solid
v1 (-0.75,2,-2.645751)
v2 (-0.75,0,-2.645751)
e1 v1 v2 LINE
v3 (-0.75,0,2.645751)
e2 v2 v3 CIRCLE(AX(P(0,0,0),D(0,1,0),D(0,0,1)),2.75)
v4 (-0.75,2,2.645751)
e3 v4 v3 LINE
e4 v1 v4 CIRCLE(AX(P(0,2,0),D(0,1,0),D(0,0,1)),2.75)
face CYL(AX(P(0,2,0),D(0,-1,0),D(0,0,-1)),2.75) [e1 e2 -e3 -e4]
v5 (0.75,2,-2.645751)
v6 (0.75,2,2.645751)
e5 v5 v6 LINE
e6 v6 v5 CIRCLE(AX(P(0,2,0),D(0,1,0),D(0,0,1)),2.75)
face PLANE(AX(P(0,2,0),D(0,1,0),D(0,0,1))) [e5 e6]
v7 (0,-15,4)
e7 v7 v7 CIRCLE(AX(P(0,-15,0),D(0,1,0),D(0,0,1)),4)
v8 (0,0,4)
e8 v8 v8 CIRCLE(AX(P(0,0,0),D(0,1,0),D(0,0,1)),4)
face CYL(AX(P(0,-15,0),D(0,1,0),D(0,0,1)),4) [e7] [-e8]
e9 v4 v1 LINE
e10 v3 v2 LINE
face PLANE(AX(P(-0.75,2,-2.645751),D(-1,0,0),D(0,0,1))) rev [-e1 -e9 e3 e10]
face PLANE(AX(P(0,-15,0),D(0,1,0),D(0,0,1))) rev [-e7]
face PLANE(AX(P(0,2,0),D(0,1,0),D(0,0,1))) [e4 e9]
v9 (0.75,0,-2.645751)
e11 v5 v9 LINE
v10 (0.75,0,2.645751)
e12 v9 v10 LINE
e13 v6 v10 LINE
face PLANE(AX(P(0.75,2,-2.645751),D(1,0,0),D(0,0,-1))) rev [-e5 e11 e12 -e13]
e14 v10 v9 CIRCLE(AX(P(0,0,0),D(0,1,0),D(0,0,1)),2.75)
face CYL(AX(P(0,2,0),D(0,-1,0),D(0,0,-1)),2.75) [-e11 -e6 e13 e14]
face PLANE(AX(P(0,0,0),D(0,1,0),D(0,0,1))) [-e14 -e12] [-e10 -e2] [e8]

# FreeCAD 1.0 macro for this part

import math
import FreeCAD as App
import Part
import Sketcher
from FreeCAD import Vector
Q = App.Units.Quantity

doc = App.newDocument("Part")
body = doc.addObject("PartDesign::Body", "Body")

# Sketch on XZ plane
sketch1 = body.newObject("Sketcher::SketchObject", "Sketch")
sketch1.AttachmentSupport = (doc.getObject("XZ_Plane"), [""])
sketch1.MapMode = "FlatFace"
sketch1.addGeometry(Part.Circle(Vector(0, 0, 0), Vector(0, 0, 1), 4), False)
sketch1.addConstraint([
    Sketcher.Constraint("Coincident", 0, 3, -1, 1),
    Sketcher.Constraint("Diameter", 0, Q("8 mm")),
])
pad1 = body.newObject("PartDesign::Pad", "Pad")
pad1.Profile = sketch1
pad1.Length = 15

# Sketch on XZ plane
sketch2 = body.newObject("Sketcher::SketchObject", "Sketch001")
sketch2.AttachmentSupport = (doc.getObject("XZ_Plane"), [""])
sketch2.MapMode = "FlatFace"
sketch2.addGeometry([
    Part.LineSegment(Vector(-0.8, 2.6, 0), Vector(-0.8, -2.6, 0)),
    Part.ArcOfCircle(Part.Circle(Vector(0, 0, 0), Vector(0, 0, 1), 2.8), math.radians(106), math.radians(254)),
    Part.LineSegment(Vector(0.8, -2.6, 0), Vector(0.8, 2.6, 0)),
    Part.ArcOfCircle(Part.Circle(Vector(0, 0, 0), Vector(0, 0, 1), 2.8), math.radians(-74), math.radians(74)),
], False)
sketch2.addConstraint([
    Sketcher.Constraint("Coincident", 0, 1, 1, 1),
    Sketcher.Constraint("Coincident", 1, 2, 0, 2),
    Sketcher.Constraint("Coincident", 2, 1, 3, 1),
    Sketcher.Constraint("Coincident", 3, 2, 2, 2),
    Sketcher.Constraint("Vertical", 0),
    Sketcher.Constraint("Vertical", 2),
    Sketcher.Constraint("Coincident", 1, 3, -1, 1),
    Sketcher.Constraint("Coincident", 3, 3, -1, 1),
    Sketcher.Constraint("Equal", 1, 3),
    Sketcher.Constraint("Horizontal", 1, 2, 2, 1),
    Sketcher.Constraint("Radius", 1, Q("2.75 mm")),
    Sketcher.Constraint("DistanceX", 1, 2, 2, 1, Q("1.5 mm")),
])
pad2 = body.newObject("PartDesign::Pad", "Pad001")
pad2.Profile = sketch2
pad2.Length = 2
pad2.Reversed = True

doc.recompute()
